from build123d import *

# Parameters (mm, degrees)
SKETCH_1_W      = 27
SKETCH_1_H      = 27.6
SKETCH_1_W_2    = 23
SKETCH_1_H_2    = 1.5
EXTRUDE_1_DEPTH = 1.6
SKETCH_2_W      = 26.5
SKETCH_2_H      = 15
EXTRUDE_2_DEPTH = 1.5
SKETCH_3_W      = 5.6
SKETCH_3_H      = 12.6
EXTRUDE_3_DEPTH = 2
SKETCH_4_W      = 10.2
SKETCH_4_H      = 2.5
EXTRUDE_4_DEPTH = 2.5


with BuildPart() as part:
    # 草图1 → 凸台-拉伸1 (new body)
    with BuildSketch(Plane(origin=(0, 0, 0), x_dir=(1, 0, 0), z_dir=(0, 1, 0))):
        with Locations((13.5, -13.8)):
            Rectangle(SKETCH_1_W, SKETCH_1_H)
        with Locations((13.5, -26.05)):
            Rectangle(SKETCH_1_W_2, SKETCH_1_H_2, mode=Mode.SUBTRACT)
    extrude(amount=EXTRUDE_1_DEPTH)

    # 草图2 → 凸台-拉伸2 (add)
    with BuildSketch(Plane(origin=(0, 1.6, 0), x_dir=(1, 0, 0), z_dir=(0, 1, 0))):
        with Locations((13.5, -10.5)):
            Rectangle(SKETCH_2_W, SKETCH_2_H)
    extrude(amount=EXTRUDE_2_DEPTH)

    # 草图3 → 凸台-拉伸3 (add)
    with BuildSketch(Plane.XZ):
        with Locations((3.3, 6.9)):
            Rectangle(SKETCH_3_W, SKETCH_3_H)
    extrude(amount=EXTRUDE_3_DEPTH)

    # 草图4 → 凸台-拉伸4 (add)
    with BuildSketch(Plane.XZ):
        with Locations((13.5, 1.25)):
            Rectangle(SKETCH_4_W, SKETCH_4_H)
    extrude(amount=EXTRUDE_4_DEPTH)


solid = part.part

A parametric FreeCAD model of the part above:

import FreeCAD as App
import Part
import Sketcher
Q = App.Units.Quantity

doc = App.newDocument("Part")
params = doc.addObject("Spreadsheet::Sheet", "Params")
for row, (alias, value) in enumerate([
    ("sketch1_width", "27 mm"),
    ("sketch1_width2", "23 mm"),
    ("sketch1_height", "27.6 mm"),
    ("sketch1_height2", "1.5 mm"),
    ("pad1_length", "1.6 mm"),
    ("sketch2_height", "15 mm"),
    ("sketch2_width", "26.5 mm"),
    ("pad2_length", "1.5 mm"),
    ("sketch3_width", "5.6 mm"),
    ("sketch3_height", "12.6 mm"),
    ("pad3_length", "2 mm"),
    ("sketch4_width", "10.2 mm"),
    ("sketch4_height", "2.5 mm"),
    ("pad4_length", "2.5 mm"),
], start=1):
    params.set(f"A{row}", alias)
    params.set(f"B{row}", "=" + value)
    params.setAlias(f"B{row}", alias)

body = doc.addObject("PartDesign::Body", "Body")

sketch1 = body.newObject("Sketcher::SketchObject", "Sketch")
sketch1.AttachmentSupport = (doc.getObject("XZ_Plane"), [""])
sketch1.MapMode = "FlatFace"
sketch1.addGeometry(Part.LineSegment(App.Vector(0, 0, 0), App.Vector(0, 27.6, 0)), False)
sketch1.addGeometry(Part.LineSegment(App.Vector(0, 27.6, 0), App.Vector(27, 27.6, 0)), False)
sketch1.addGeometry(Part.LineSegment(App.Vector(27, 27.6, 0), App.Vector(27, 0, 0)), False)
sketch1.addGeometry(Part.LineSegment(App.Vector(27, 0, 0), App.Vector(0, 0, 0)), False)
sketch1.addGeometry(Part.LineSegment(App.Vector(25, 26.8, 0), App.Vector(2, 26.8, 0)), False)
sketch1.addGeometry(Part.LineSegment(App.Vector(2, 26.8, 0), App.Vector(2, 25.3, 0)), False)
sketch1.addGeometry(Part.LineSegment(App.Vector(2, 25.3, 0), App.Vector(25, 25.3, 0)), False)
sketch1.addGeometry(Part.LineSegment(App.Vector(25, 25.3, 0), App.Vector(25, 26.8, 0)), False)
sketch1.addConstraint(Sketcher.Constraint("Coincident", 0, 2, 1, 1))
sketch1.addConstraint(Sketcher.Constraint("Coincident", 1, 2, 2, 1))
sketch1.addConstraint(Sketcher.Constraint("Coincident", 2, 2, 3, 1))
sketch1.addConstraint(Sketcher.Constraint("Coincident", 3, 2, 0, 1))
sketch1.addConstraint(Sketcher.Constraint("Coincident", 4, 2, 5, 1))
sketch1.addConstraint(Sketcher.Constraint("Coincident", 5, 2, 6, 1))
sketch1.addConstraint(Sketcher.Constraint("Coincident", 6, 2, 7, 1))
sketch1.addConstraint(Sketcher.Constraint("Coincident", 7, 2, 4, 1))
sketch1.addConstraint(Sketcher.Constraint("Vertical", 0))
sketch1.addConstraint(Sketcher.Constraint("Horizontal", 1))
sketch1.addConstraint(Sketcher.Constraint("Vertical", 2))
sketch1.addConstraint(Sketcher.Constraint("Horizontal", 3))
sketch1.addConstraint(Sketcher.Constraint("Horizontal", 4))
sketch1.addConstraint(Sketcher.Constraint("Vertical", 5))
sketch1.addConstraint(Sketcher.Constraint("Horizontal", 6))
sketch1.addConstraint(Sketcher.Constraint("Vertical", 7))
sketch1.addConstraint(Sketcher.Constraint("Coincident", 3, 2, -1, 1))
sketch1.addConstraint(Sketcher.Constraint("DistanceX", 1, 1, 1, 2, Q("27 mm")))
sketch1.addConstraint(Sketcher.Constraint("DistanceX", 4, 2, 4, 1, Q("23 mm")))
sketch1.addConstraint(Sketcher.Constraint("DistanceY", 0, 1, 0, 2, Q("27.6 mm")))
sketch1.addConstraint(Sketcher.Constraint("DistanceY", 5, 2, 5, 1, Q("1.5 mm")))
sketch1.addConstraint(Sketcher.Constraint("DistanceX", -1, 1, 4, 2, Q("2 mm")))
sketch1.addConstraint(Sketcher.Constraint("DistanceY", -1, 1, 4, 2, Q("26.8 mm")))
sketch1.setExpression("Constraints[17]", "Params.sketch1_width")
sketch1.setExpression("Constraints[18]", "Params.sketch1_width2")
sketch1.setExpression("Constraints[19]", "Params.sketch1_height")
sketch1.setExpression("Constraints[20]", "Params.sketch1_height2")
pad1 = body.newObject("PartDesign::Pad", "Pad")
pad1.Profile = sketch1
pad1.setExpression("Length", "Params.pad1_length")
pad1.Reversed = True

sketch2 = body.newObject("Sketcher::SketchObject", "Sketch001")
sketch2.AttachmentSupport = (doc.getObject("XZ_Plane"), [""])
sketch2.MapMode = "FlatFace"
sketch2.AttachmentOffset = App.Placement(App.Vector(0, 0, -1.6), App.Rotation())
sketch2.addGeometry(Part.LineSegment(App.Vector(0, 3, 0), App.Vector(0, 18, 0)), False)
sketch2.addGeometry(Part.LineSegment(App.Vector(0, 18, 0), App.Vector(27, 18, 0)), False)
sketch2.addGeometry(Part.LineSegment(App.Vector(27, 18, 0), App.Vector(27, 3, 0)), False)
sketch2.addGeometry(Part.LineSegment(App.Vector(27, 3, 0), App.Vector(0, 3, 0)), False)
sketch2.addConstraint(Sketcher.Constraint("Coincident", 0, 2, 1, 1))
sketch2.addConstraint(Sketcher.Constraint("Coincident", 1, 2, 2, 1))
sketch2.addConstraint(Sketcher.Constraint("Coincident", 2, 2, 3, 1))
sketch2.addConstraint(Sketcher.Constraint("Coincident", 3, 2, 0, 1))
sketch2.addConstraint(Sketcher.Constraint("Vertical", 0))
sketch2.addConstraint(Sketcher.Constraint("Horizontal", 1))
sketch2.addConstraint(Sketcher.Constraint("Vertical", 2))
sketch2.addConstraint(Sketcher.Constraint("Horizontal", 3))
sketch2.addConstraint(Sketcher.Constraint("DistanceY", 0, 1, 0, 2, Q("15 mm")))
sketch2.addConstraint(Sketcher.Constraint("DistanceX", 1, 1, 1, 2, Q("26.5 mm")))
sketch2.addConstraint(Sketcher.Constraint("DistanceY", -1, 1, 0, 2, Q("18 mm")))
sketch2.addConstraint(Sketcher.Constraint("DistanceX", -1, 1, 0, 2, Q("0.25 mm")))
sketch2.setExpression("Constraints[8]", "Params.sketch2_height")
sketch2.setExpression("Constraints[9]", "Params.sketch2_width")
pad2 = body.newObject("PartDesign::Pad", "Pad001")
pad2.Profile = sketch2
pad2.setExpression("Length", "Params.pad2_length")
pad2.Reversed = True

sketch3 = body.newObject("Sketcher::SketchObject", "Sketch002")
sketch3.AttachmentSupport = (doc.getObject("XZ_Plane"), [""])
sketch3.MapMode = "FlatFace"
sketch3.addGeometry(Part.LineSegment(App.Vector(0, 13, 0), App.Vector(0, 1, 0)), False)
sketch3.addGeometry(Part.LineSegment(App.Vector(0, 1, 0), App.Vector(6, 1, 0)), False)
sketch3.addGeometry(Part.LineSegment(App.Vector(6, 1, 0), App.Vector(6, 13, 0)), False)
sketch3.addGeometry(Part.LineSegment(App.Vector(6, 13, 0), App.Vector(0, 13, 0)), False)
sketch3.addConstraint(Sketcher.Constraint("Coincident", 0, 2, 1, 1))
sketch3.addConstraint(Sketcher.Constraint("Coincident", 1, 2, 2, 1))
sketch3.addConstraint(Sketcher.Constraint("Coincident", 2, 2, 3, 1))
sketch3.addConstraint(Sketcher.Constraint("Coincident", 3, 2, 0, 1))
sketch3.addConstraint(Sketcher.Constraint("Vertical", 0))
sketch3.addConstraint(Sketcher.Constraint("Horizontal", 1))
sketch3.addConstraint(Sketcher.Constraint("Vertical", 2))
sketch3.addConstraint(Sketcher.Constraint("Horizontal", 3))
sketch3.addConstraint(Sketcher.Constraint("DistanceX", 1, 1, 1, 2, Q("5.6 mm")))
sketch3.addConstraint(Sketcher.Constraint("DistanceY", 0, 2, 0, 1, Q("12.6 mm")))
sketch3.addConstraint(Sketcher.Constraint("DistanceX", -1, 1, 0, 2, Q("0.5 mm")))
sketch3.addConstraint(Sketcher.Constraint("DistanceY", -1, 1, 0, 2, Q("0.6 mm")))
sketch3.setExpression("Constraints[8]", "Params.sketch3_width")
sketch3.setExpression("Constraints[9]", "Params.sketch3_height")
pad3 = body.newObject("PartDesign::Pad", "Pad002")
pad3.Profile = sketch3
pad3.setExpression("Length", "Params.pad3_length")

sketch4 = body.newObject("Sketcher::SketchObject", "Sketch003")
sketch4.AttachmentSupport = (doc.getObject("XZ_Plane"), [""])
sketch4.MapMode = "FlatFace"
sketch4.addGeometry(Part.LineSegment(App.Vector(8.4, 2.5, 0), App.Vector(8.4, 0, 0)), False)
sketch4.addGeometry(Part.LineSegment(App.Vector(8.4, 0, 0), App.Vector(18.6, 0, 0)), False)
sketch4.addGeometry(Part.LineSegment(App.Vector(18.6, 0, 0), App.Vector(18.6, 2.5, 0)), False)
sketch4.addGeometry(Part.LineSegment(App.Vector(18.6, 2.5, 0), App.Vector(8.4, 2.5, 0)), False)
sketch4.addConstraint(Sketcher.Constraint("Coincident", 0, 2, 1, 1))
sketch4.addConstraint(Sketcher.Constraint("Coincident", 1, 2, 2, 1))
sketch4.addConstraint(Sketcher.Constraint("Coincident", 2, 2, 3, 1))
sketch4.addConstraint(Sketcher.Constraint("Coincident", 3, 2, 0, 1))
sketch4.addConstraint(Sketcher.Constraint("Vertical", 0))
sketch4.addConstraint(Sketcher.Constraint("Horizontal", 1))
sketch4.addConstraint(Sketcher.Constraint("Vertical", 2))
sketch4.addConstraint(Sketcher.Constraint("Horizontal", 3))
sketch4.addConstraint(Sketcher.Constraint("PointOnObject", 0, 2, -1))
sketch4.addConstraint(Sketcher.Constraint("DistanceX", 1, 1, 1, 2, Q("10.2 mm")))
sketch4.addConstraint(Sketcher.Constraint("DistanceY", 0, 2, 0, 1, Q("2.5 mm")))
sketch4.addConstraint(Sketcher.Constraint("DistanceX", -1, 1, 0, 2, Q("8.4 mm")))
sketch4.setExpression("Constraints[9]", "Params.sketch4_width")
sketch4.setExpression("Constraints[10]", "Params.sketch4_height")
pad4 = body.newObject("PartDesign::Pad", "Pad003")
pad4.Profile = sketch4
pad4.setExpression("Length", "Params.pad4_length")

doc.recompute()
